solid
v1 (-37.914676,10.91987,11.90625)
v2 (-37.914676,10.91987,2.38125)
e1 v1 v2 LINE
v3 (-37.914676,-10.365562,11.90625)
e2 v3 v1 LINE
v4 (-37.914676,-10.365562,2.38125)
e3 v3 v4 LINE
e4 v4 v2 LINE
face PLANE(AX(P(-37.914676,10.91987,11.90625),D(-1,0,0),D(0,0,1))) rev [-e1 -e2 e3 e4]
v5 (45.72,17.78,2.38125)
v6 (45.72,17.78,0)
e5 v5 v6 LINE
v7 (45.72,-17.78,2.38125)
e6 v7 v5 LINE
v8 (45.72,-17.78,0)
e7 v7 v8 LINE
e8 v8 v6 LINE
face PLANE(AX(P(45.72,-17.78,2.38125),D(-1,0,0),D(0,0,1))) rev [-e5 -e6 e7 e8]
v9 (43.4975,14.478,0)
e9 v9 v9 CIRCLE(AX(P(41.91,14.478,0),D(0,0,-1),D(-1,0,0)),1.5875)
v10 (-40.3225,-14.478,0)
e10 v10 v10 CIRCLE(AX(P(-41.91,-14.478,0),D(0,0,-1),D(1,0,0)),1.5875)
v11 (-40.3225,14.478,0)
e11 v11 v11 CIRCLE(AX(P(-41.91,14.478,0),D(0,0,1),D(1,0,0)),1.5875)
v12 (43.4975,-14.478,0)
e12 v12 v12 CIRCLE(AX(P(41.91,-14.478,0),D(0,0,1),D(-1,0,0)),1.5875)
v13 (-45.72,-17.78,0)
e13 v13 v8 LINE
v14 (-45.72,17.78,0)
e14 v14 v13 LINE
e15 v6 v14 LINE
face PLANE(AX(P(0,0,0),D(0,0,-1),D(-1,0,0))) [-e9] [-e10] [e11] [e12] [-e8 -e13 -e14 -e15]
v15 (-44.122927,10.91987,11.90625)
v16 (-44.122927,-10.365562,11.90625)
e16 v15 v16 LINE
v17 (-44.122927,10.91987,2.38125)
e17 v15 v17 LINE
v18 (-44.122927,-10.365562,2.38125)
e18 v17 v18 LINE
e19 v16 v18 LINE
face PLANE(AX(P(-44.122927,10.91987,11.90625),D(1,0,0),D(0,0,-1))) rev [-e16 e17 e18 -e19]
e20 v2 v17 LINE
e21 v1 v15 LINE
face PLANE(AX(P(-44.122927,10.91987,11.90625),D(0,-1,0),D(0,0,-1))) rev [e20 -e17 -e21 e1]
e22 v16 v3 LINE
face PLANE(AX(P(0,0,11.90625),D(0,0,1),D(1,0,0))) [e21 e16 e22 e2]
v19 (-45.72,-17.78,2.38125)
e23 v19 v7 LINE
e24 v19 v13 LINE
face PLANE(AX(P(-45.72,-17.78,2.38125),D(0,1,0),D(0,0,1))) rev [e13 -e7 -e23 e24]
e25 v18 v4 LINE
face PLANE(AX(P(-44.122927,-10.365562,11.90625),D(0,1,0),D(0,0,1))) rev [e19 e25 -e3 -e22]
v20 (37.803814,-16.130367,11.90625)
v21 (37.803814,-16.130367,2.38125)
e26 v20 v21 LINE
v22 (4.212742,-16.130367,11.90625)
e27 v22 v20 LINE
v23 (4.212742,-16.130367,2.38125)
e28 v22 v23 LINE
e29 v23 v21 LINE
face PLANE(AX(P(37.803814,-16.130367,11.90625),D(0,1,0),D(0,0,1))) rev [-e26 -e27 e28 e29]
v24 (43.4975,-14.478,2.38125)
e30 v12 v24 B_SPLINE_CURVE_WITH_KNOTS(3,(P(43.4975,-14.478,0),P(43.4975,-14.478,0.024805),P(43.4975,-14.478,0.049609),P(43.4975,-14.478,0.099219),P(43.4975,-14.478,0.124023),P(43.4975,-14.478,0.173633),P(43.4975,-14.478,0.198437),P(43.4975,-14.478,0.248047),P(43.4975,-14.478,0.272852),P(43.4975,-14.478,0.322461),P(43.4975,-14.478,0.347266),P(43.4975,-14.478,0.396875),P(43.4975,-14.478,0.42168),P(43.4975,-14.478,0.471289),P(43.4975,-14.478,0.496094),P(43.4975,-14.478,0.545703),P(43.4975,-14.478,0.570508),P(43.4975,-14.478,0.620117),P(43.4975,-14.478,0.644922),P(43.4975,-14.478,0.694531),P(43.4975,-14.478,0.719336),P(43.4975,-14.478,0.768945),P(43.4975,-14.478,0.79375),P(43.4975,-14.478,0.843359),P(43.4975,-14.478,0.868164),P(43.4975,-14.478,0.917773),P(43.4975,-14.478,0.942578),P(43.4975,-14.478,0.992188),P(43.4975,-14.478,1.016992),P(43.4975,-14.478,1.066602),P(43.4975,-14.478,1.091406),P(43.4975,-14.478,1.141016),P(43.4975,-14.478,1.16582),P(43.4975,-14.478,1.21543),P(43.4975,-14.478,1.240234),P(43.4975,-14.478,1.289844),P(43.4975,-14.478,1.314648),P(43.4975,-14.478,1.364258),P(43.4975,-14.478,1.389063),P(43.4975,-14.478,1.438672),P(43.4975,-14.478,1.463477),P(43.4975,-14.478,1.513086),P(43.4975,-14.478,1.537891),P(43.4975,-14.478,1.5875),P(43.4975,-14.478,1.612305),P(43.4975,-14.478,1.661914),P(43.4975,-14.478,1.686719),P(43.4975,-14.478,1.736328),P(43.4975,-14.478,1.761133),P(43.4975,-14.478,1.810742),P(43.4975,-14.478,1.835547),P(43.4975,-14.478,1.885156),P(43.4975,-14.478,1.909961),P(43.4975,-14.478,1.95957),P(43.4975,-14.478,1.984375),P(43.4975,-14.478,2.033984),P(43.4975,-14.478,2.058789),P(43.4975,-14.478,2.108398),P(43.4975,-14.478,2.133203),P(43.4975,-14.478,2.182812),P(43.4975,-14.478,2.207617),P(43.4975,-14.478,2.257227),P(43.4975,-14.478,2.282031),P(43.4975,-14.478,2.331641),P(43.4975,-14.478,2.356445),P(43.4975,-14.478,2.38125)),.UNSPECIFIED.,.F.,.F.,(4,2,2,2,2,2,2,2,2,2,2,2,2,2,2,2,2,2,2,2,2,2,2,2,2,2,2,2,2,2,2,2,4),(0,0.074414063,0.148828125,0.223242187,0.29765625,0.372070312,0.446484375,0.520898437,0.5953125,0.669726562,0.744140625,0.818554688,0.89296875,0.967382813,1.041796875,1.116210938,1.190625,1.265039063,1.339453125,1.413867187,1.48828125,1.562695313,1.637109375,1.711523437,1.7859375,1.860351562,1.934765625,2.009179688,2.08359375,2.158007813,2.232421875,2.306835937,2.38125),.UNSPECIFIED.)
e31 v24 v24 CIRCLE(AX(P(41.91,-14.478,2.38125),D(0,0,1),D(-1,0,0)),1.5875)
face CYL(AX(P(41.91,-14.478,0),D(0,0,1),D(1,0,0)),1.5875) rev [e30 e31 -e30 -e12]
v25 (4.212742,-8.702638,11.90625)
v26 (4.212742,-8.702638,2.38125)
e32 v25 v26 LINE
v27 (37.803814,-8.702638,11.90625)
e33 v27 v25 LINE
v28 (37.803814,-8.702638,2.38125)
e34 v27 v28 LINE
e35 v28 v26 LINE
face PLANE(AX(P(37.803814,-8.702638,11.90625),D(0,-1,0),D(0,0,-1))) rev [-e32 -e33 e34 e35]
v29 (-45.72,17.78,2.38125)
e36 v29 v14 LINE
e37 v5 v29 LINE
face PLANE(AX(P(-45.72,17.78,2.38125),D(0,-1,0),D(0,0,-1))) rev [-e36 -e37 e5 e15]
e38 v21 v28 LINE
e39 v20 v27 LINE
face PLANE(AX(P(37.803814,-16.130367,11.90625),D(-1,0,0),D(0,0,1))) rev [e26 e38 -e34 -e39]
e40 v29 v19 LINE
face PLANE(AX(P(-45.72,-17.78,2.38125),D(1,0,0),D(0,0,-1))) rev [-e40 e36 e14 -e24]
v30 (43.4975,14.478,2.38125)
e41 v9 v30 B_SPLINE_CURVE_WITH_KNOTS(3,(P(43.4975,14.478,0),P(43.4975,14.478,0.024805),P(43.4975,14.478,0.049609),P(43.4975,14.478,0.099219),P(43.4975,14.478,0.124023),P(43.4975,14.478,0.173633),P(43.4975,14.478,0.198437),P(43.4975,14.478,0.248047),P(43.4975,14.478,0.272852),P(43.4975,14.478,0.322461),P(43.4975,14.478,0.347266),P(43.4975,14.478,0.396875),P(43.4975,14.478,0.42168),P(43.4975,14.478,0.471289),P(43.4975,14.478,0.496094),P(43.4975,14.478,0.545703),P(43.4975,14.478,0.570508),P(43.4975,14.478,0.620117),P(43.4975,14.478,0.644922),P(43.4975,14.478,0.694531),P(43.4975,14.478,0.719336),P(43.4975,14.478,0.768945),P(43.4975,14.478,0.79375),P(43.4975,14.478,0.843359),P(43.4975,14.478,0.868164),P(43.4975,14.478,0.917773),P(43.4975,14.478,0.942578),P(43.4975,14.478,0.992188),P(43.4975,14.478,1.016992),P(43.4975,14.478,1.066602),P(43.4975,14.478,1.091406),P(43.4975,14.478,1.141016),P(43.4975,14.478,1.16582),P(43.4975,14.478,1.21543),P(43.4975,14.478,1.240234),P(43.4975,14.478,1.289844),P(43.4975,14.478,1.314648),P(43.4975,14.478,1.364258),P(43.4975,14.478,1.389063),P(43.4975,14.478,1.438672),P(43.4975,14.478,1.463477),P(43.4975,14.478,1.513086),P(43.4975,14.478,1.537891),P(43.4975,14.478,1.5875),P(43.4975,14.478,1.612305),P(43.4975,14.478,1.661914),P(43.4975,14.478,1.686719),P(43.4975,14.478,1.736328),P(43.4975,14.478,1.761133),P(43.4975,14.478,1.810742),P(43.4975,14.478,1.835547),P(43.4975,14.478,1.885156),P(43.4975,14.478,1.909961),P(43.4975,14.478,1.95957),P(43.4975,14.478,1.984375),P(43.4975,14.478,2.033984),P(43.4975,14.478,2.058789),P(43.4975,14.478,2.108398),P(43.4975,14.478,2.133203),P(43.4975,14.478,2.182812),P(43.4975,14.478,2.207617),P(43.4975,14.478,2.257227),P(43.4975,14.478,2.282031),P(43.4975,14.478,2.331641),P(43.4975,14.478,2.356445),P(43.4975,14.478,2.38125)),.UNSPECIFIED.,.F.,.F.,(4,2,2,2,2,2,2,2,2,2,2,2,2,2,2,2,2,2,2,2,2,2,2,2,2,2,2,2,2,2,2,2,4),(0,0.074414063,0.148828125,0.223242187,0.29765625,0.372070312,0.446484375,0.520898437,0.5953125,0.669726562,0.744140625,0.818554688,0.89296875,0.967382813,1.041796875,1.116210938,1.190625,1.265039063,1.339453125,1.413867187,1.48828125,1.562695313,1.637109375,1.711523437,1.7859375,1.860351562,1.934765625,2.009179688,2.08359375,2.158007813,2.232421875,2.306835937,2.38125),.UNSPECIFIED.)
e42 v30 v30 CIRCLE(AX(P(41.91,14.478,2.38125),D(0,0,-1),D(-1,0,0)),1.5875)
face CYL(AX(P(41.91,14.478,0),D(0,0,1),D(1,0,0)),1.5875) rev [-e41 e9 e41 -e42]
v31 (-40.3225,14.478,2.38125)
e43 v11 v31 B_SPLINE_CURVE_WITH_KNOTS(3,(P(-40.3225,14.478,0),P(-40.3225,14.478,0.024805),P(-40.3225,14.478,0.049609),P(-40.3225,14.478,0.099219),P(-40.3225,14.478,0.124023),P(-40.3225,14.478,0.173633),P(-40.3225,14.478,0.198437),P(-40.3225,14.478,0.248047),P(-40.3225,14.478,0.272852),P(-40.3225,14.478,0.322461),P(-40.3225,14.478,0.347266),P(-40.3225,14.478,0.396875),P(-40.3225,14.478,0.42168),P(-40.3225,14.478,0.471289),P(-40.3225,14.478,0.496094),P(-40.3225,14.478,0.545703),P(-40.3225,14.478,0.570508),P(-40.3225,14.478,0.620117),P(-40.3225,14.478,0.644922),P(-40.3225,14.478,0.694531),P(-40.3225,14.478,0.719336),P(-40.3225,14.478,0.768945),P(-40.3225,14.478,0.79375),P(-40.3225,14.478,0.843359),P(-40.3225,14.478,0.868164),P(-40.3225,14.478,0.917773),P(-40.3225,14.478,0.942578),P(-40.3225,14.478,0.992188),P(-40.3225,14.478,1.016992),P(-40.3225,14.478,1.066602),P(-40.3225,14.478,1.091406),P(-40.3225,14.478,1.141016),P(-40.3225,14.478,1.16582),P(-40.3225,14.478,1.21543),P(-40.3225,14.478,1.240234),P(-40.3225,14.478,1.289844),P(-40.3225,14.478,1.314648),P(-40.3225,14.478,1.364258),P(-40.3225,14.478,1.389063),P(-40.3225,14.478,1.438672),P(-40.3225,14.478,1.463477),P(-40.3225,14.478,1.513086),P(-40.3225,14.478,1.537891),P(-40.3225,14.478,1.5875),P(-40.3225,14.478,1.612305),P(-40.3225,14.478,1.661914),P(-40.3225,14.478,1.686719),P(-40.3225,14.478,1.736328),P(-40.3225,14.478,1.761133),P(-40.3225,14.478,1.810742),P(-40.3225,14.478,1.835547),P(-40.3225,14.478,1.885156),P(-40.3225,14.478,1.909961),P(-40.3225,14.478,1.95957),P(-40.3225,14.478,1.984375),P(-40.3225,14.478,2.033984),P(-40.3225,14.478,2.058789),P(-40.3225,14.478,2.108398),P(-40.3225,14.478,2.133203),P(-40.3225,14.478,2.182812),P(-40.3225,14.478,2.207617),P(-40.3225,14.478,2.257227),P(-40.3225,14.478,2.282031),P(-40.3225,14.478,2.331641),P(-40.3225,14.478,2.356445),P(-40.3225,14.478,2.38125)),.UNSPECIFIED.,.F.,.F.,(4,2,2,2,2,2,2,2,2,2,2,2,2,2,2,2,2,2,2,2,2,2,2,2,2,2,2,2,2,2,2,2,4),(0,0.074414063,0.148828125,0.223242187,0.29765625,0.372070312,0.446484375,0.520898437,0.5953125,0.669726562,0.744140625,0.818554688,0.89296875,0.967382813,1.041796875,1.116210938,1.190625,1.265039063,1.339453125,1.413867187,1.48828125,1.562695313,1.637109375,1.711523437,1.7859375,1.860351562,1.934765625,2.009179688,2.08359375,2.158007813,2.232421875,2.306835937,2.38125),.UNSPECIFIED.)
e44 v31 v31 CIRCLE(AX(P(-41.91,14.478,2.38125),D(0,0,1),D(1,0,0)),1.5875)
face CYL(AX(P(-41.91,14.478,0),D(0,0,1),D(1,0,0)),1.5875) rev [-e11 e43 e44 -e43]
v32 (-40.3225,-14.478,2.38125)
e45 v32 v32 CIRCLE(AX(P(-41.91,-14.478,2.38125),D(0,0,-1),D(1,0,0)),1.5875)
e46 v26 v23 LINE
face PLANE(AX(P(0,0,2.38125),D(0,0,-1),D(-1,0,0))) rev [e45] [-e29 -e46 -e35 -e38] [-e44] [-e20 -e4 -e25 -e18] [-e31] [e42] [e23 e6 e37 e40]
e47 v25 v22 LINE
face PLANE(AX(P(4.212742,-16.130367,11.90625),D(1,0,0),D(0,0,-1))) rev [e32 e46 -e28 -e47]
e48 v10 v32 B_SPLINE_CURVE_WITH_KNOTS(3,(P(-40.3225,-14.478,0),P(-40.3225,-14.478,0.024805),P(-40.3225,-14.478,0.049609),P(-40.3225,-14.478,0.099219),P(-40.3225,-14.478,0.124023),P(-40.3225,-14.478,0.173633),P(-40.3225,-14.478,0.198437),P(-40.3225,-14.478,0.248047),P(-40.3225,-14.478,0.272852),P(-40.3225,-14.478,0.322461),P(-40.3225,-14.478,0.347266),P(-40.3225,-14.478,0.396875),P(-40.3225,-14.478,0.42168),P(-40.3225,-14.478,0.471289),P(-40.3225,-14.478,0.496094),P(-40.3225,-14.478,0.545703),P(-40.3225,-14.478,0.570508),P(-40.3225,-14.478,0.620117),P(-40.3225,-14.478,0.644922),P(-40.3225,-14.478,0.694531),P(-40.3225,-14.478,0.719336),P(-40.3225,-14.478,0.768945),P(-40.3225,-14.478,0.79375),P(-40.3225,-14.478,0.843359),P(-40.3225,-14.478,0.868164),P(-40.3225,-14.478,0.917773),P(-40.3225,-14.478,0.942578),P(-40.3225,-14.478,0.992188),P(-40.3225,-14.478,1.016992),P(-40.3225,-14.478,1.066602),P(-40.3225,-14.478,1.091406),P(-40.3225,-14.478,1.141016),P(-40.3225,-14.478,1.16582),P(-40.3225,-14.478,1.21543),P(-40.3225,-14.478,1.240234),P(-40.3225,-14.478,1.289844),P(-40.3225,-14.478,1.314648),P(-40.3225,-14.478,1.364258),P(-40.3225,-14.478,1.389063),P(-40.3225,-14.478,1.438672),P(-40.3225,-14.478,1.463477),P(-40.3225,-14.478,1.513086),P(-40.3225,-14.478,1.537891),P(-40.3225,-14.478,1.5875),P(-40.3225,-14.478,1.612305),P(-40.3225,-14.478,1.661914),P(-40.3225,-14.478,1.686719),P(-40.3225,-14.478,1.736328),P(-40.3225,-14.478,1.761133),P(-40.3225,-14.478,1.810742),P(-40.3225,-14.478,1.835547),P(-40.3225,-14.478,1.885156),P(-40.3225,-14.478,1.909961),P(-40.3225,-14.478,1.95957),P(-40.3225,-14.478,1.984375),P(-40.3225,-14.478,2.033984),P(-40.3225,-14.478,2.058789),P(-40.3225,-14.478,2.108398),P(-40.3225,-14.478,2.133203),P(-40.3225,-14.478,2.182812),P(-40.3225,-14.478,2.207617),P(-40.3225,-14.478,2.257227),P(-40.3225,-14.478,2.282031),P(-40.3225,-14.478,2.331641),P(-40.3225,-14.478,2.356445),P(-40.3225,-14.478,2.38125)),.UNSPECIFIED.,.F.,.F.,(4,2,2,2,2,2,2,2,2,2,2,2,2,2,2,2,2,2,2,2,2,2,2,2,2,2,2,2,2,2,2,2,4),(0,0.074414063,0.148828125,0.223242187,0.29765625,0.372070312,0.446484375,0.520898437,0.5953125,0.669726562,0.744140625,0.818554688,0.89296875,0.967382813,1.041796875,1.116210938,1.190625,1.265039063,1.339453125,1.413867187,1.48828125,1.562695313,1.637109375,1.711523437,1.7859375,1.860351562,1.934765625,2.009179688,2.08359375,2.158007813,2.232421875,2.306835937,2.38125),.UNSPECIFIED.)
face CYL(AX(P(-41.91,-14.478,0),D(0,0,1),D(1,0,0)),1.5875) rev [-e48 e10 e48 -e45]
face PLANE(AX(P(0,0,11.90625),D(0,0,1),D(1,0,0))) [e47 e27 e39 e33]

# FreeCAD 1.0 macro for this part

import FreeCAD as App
import Part
import Sketcher
from FreeCAD import Vector
Q = App.Units.Quantity

doc = App.newDocument("Part")
body = doc.addObject("PartDesign::Body", "Body")

sketch1 = body.newObject("Sketcher::SketchObject", "Sketch")
sketch1.AttachmentSupport = (doc.getObject("XY_Plane"), [""])
sketch1.MapMode = "FlatFace"
sketch1.addGeometry([
    Part.LineSegment(Vector(-46, 18, 0), Vector(-46, -18, 0)),
    Part.LineSegment(Vector(-46, -18, 0), Vector(46, -18, 0)),
    Part.LineSegment(Vector(46, -18, 0), Vector(46, 18, 0)),
    Part.LineSegment(Vector(46, 18, 0), Vector(-46, 18, 0)),
], False)
sketch1.addConstraint([
    Sketcher.Constraint("Coincident", 0, 2, 1, 1),
    Sketcher.Constraint("Coincident", 1, 2, 2, 1),
    Sketcher.Constraint("Coincident", 2, 2, 3, 1),
    Sketcher.Constraint("Coincident", 3, 2, 0, 1),
    Sketcher.Constraint("Vertical", 0),
    Sketcher.Constraint("Horizontal", 1),
    Sketcher.Constraint("Vertical", 2),
    Sketcher.Constraint("Horizontal", 3),
    Sketcher.Constraint("Symmetric", 0, 2, 2, 2, -1, 1),
    Sketcher.Constraint("DistanceX", 1, 1, 1, 2, Q("3.6 in")),
    Sketcher.Constraint("DistanceY", 0, 2, 0, 1, Q("1.4 in")),
])
pad1 = body.newObject("PartDesign::Pad", "Pad")
pad1.Profile = sketch1
pad1.Length = Q("0.09375 in")

sketch2 = body.newObject("Sketcher::SketchObject", "Sketch001")
sketch2.AttachmentSupport = (doc.getObject("XY_Plane"), [""])
sketch2.MapMode = "FlatFace"
sketch2.AttachmentOffset = App.Placement(Vector(0, 0, 0.09375 * 25.4), App.Rotation())
sketch2.addGeometry(Part.Circle(Vector(-41.9, 14.5, 0), Vector(0, 0, 1), 1.6), False)
sketch2.addConstraint([
    Sketcher.Constraint("Diameter", 0, Q("0.125 in")),
    Sketcher.Constraint("DistanceX", 0, 3, -1, 1, Q("1.65 in")),
    Sketcher.Constraint("DistanceY", -1, 1, 0, 3, Q("0.57 in")),
])
pocket1 = body.newObject("PartDesign::Pocket", "Pocket")
pocket1.Profile = sketch2
pocket1.Type = "ThroughAll"
doc.recompute()

mirrored = body.newObject("PartDesign::Mirrored", "Mirrored")
mirrored.Originals = [pocket1]
mirrored.MirrorPlane = (doc.getObject("YZ_Plane"), [""])
body.Tip = mirrored
doc.recompute()

mirrored2 = body.newObject("PartDesign::Mirrored", "Mirrored001")
mirrored2.Originals = [pocket1]
mirrored2.MirrorPlane = (doc.getObject("XZ_Plane"), [""])
body.Tip = mirrored2

sketch3 = body.newObject("Sketcher::SketchObject", "Sketch002")
sketch3.AttachmentSupport = (doc.getObject("XY_Plane"), [""])
sketch3.MapMode = "FlatFace"
sketch3.AttachmentOffset = App.Placement(Vector(0, 0, 0.09375 * 25.4), App.Rotation())
sketch3.addGeometry(Part.Circle(Vector(41.9, -14.5, 0), Vector(0, 0, 1), 1.6), False)
sketch3.addConstraint([
    Sketcher.Constraint("Diameter", 0, Q("0.125 in")),
    Sketcher.Constraint("DistanceX", -1, 1, 0, 3, Q("1.65 in")),
    Sketcher.Constraint("DistanceY", 0, 3, -1, 1, Q("0.57 in")),
])
pocket2 = body.newObject("PartDesign::Pocket", "Pocket001")
pocket2.Profile = sketch3
pocket2.Type = "ThroughAll"

sketch4 = body.newObject("Sketcher::SketchObject", "Sketch003")
sketch4.AttachmentSupport = (doc.getObject("XY_Plane"), [""])
sketch4.MapMode = "FlatFace"
sketch4.AttachmentOffset = App.Placement(Vector(0, 0, 0.09375 * 25.4), App.Rotation())
sketch4.addGeometry([
    Part.LineSegment(Vector(-44, 11, 0), Vector(-44, -10, 0)),
    Part.LineSegment(Vector(-44, -10, 0), Vector(-38, -10, 0)),
    Part.LineSegment(Vector(-38, -10, 0), Vector(-38, 11, 0)),
    Part.LineSegment(Vector(-38, 11, 0), Vector(-44, 11, 0)),
    Part.LineSegment(Vector(4, -9, 0), Vector(4, -16, 0)),
    Part.LineSegment(Vector(4, -16, 0), Vector(38, -16, 0)),
    Part.LineSegment(Vector(38, -16, 0), Vector(38, -9, 0)),
    Part.LineSegment(Vector(38, -9, 0), Vector(4, -9, 0)),
], False)
sketch4.addConstraint([
    Sketcher.Constraint("Coincident", 0, 2, 1, 1),
    Sketcher.Constraint("Coincident", 1, 2, 2, 1),
    Sketcher.Constraint("Coincident", 2, 2, 3, 1),
    Sketcher.Constraint("Coincident", 3, 2, 0, 1),
    Sketcher.Constraint("Coincident", 4, 2, 5, 1),
    Sketcher.Constraint("Coincident", 5, 2, 6, 1),
    Sketcher.Constraint("Coincident", 6, 2, 7, 1),
    Sketcher.Constraint("Coincident", 7, 2, 4, 1),
    Sketcher.Constraint("Vertical", 0),
    Sketcher.Constraint("Horizontal", 1),
    Sketcher.Constraint("Vertical", 2),
    Sketcher.Constraint("Horizontal", 3),
    Sketcher.Constraint("Vertical", 4),
    Sketcher.Constraint("Horizontal", 5),
    Sketcher.Constraint("Vertical", 6),
    Sketcher.Constraint("Horizontal", 7),
    Sketcher.Constraint("DistanceX", 1, 1, 1, 2, 6.208251),
    Sketcher.Constraint("DistanceY", 4, 2, 4, 1, 7.427729),
    Sketcher.Constraint("DistanceX", 5, 1, 5, 2, 33.591073),
    Sketcher.Constraint("DistanceY", 0, 2, 0, 1, 21.285432),
    Sketcher.Constraint("DistanceY", 0, 2, -1, 1, 10.365562),
    Sketcher.Constraint("DistanceX", -1, 1, 4, 2, 4.212742),
    Sketcher.Constraint("DistanceX", 0, 2, 4, 2, 48.335669),
    Sketcher.Constraint("DistanceY", 4, 2, -1, 1, 16.130367),
])
pad2 = body.newObject("PartDesign::Pad", "Pad001")
pad2.Profile = sketch4
pad2.Length = Q("0.375 in")

doc.recompute()
